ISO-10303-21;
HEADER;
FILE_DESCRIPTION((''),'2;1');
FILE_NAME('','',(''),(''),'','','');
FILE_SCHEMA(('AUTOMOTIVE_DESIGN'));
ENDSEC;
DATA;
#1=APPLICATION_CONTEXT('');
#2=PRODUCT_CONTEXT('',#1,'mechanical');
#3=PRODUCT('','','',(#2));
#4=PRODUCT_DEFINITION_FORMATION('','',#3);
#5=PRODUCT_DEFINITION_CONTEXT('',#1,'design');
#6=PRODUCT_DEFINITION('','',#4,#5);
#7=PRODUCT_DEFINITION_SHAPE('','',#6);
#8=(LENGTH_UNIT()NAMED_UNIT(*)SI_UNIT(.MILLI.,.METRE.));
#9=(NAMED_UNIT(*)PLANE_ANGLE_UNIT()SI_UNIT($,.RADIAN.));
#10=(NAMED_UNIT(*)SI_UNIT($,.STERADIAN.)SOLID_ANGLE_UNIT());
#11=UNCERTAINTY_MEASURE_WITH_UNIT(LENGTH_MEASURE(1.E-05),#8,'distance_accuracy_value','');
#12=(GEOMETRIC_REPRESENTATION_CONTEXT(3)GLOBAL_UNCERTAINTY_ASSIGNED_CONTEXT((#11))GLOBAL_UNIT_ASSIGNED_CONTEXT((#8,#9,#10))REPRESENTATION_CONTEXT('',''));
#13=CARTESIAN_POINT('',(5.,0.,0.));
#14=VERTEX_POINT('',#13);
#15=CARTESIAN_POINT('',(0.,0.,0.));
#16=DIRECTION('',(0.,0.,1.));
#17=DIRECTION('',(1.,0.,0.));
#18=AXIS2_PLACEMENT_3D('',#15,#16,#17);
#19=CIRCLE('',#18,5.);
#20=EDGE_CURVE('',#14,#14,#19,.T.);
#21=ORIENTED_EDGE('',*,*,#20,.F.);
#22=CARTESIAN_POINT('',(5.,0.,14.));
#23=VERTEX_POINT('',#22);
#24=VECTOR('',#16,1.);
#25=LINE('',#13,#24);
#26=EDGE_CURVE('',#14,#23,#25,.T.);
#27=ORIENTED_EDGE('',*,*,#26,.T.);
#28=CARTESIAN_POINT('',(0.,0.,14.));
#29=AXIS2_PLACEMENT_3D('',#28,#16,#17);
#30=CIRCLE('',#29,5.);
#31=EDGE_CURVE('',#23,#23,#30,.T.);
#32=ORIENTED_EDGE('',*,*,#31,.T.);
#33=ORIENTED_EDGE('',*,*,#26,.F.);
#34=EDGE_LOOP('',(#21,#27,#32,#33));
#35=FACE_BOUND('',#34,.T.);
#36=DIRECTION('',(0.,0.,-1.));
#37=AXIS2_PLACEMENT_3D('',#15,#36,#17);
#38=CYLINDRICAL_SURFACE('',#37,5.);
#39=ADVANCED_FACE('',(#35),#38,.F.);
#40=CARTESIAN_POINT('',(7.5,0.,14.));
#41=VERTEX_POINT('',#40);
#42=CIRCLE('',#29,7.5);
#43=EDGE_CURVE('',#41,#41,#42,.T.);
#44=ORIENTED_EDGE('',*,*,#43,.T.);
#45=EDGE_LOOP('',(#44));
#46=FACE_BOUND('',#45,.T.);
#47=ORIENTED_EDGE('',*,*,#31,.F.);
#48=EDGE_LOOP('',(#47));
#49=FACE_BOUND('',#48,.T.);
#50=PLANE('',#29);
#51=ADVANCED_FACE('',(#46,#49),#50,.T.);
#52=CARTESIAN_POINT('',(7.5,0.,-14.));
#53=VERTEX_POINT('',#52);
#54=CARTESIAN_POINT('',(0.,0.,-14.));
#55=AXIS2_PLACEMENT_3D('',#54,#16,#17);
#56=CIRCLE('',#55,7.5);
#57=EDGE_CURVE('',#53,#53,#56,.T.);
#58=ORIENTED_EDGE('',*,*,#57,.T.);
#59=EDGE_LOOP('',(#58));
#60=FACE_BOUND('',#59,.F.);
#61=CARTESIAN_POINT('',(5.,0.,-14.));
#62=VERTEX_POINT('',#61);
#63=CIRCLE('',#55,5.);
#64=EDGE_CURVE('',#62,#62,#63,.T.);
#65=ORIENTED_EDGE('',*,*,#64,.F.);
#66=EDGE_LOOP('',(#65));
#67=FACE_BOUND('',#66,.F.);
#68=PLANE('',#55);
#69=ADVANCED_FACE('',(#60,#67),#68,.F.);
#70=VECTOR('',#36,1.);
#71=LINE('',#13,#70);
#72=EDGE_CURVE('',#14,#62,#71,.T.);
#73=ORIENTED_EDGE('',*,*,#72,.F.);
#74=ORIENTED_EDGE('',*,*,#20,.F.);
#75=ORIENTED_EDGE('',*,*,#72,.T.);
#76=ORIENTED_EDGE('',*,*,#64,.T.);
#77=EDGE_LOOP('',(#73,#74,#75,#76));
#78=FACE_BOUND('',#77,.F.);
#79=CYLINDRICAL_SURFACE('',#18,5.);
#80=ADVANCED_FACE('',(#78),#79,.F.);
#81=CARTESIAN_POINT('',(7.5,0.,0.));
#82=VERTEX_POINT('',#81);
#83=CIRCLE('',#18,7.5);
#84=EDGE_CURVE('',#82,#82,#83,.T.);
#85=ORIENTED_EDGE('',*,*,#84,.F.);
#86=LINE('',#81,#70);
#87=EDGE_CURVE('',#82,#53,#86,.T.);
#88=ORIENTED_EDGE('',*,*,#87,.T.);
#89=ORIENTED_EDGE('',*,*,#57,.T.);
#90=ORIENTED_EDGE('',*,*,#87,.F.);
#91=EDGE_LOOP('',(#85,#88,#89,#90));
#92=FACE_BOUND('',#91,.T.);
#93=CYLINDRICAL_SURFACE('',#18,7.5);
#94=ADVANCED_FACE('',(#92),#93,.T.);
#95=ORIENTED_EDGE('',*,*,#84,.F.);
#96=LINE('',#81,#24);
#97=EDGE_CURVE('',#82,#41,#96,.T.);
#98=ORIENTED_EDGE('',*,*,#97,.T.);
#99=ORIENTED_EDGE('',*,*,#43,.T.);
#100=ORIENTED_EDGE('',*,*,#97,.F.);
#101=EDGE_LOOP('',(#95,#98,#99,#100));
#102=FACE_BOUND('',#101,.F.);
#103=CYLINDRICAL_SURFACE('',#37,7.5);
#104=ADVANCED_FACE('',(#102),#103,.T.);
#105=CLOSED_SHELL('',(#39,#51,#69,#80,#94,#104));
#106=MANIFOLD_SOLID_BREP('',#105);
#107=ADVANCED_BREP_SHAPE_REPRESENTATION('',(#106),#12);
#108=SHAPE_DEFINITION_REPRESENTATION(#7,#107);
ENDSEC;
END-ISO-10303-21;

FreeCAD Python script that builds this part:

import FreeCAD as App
import Part
import Sketcher
from FreeCAD import Vector
Q = App.Units.Quantity

doc = App.newDocument("Part")
body = doc.addObject("PartDesign::Body", "Body")

# Sketch on XY plane
sketch1 = body.newObject("Sketcher::SketchObject", "Sketch")
sketch1.AttachmentSupport = (doc.getObject("XY_Plane"), [""])
sketch1.MapMode = "FlatFace"
sketch1.addGeometry(Part.Circle(Vector(0, 0, 0), Vector(0, 0, 1), 8), False)
sketch1.addGeometry(Part.Circle(Vector(0, 0, 0), Vector(0, 0, 1), 5), False)
sketch1.addConstraint(Sketcher.Constraint("Coincident", 0, 3, -1, 1))
sketch1.addConstraint(Sketcher.Constraint("Coincident", 1, 3, -1, 1))
sketch1.addConstraint(Sketcher.Constraint("Diameter", 0, Q("15 mm")))
sketch1.addConstraint(Sketcher.Constraint("Diameter", 1, Q("10 mm")))
pad1 = body.newObject("PartDesign::Pad", "Pad")
pad1.Profile = sketch1
pad1.Length = 28
pad1.Midplane = True

doc.recompute()
